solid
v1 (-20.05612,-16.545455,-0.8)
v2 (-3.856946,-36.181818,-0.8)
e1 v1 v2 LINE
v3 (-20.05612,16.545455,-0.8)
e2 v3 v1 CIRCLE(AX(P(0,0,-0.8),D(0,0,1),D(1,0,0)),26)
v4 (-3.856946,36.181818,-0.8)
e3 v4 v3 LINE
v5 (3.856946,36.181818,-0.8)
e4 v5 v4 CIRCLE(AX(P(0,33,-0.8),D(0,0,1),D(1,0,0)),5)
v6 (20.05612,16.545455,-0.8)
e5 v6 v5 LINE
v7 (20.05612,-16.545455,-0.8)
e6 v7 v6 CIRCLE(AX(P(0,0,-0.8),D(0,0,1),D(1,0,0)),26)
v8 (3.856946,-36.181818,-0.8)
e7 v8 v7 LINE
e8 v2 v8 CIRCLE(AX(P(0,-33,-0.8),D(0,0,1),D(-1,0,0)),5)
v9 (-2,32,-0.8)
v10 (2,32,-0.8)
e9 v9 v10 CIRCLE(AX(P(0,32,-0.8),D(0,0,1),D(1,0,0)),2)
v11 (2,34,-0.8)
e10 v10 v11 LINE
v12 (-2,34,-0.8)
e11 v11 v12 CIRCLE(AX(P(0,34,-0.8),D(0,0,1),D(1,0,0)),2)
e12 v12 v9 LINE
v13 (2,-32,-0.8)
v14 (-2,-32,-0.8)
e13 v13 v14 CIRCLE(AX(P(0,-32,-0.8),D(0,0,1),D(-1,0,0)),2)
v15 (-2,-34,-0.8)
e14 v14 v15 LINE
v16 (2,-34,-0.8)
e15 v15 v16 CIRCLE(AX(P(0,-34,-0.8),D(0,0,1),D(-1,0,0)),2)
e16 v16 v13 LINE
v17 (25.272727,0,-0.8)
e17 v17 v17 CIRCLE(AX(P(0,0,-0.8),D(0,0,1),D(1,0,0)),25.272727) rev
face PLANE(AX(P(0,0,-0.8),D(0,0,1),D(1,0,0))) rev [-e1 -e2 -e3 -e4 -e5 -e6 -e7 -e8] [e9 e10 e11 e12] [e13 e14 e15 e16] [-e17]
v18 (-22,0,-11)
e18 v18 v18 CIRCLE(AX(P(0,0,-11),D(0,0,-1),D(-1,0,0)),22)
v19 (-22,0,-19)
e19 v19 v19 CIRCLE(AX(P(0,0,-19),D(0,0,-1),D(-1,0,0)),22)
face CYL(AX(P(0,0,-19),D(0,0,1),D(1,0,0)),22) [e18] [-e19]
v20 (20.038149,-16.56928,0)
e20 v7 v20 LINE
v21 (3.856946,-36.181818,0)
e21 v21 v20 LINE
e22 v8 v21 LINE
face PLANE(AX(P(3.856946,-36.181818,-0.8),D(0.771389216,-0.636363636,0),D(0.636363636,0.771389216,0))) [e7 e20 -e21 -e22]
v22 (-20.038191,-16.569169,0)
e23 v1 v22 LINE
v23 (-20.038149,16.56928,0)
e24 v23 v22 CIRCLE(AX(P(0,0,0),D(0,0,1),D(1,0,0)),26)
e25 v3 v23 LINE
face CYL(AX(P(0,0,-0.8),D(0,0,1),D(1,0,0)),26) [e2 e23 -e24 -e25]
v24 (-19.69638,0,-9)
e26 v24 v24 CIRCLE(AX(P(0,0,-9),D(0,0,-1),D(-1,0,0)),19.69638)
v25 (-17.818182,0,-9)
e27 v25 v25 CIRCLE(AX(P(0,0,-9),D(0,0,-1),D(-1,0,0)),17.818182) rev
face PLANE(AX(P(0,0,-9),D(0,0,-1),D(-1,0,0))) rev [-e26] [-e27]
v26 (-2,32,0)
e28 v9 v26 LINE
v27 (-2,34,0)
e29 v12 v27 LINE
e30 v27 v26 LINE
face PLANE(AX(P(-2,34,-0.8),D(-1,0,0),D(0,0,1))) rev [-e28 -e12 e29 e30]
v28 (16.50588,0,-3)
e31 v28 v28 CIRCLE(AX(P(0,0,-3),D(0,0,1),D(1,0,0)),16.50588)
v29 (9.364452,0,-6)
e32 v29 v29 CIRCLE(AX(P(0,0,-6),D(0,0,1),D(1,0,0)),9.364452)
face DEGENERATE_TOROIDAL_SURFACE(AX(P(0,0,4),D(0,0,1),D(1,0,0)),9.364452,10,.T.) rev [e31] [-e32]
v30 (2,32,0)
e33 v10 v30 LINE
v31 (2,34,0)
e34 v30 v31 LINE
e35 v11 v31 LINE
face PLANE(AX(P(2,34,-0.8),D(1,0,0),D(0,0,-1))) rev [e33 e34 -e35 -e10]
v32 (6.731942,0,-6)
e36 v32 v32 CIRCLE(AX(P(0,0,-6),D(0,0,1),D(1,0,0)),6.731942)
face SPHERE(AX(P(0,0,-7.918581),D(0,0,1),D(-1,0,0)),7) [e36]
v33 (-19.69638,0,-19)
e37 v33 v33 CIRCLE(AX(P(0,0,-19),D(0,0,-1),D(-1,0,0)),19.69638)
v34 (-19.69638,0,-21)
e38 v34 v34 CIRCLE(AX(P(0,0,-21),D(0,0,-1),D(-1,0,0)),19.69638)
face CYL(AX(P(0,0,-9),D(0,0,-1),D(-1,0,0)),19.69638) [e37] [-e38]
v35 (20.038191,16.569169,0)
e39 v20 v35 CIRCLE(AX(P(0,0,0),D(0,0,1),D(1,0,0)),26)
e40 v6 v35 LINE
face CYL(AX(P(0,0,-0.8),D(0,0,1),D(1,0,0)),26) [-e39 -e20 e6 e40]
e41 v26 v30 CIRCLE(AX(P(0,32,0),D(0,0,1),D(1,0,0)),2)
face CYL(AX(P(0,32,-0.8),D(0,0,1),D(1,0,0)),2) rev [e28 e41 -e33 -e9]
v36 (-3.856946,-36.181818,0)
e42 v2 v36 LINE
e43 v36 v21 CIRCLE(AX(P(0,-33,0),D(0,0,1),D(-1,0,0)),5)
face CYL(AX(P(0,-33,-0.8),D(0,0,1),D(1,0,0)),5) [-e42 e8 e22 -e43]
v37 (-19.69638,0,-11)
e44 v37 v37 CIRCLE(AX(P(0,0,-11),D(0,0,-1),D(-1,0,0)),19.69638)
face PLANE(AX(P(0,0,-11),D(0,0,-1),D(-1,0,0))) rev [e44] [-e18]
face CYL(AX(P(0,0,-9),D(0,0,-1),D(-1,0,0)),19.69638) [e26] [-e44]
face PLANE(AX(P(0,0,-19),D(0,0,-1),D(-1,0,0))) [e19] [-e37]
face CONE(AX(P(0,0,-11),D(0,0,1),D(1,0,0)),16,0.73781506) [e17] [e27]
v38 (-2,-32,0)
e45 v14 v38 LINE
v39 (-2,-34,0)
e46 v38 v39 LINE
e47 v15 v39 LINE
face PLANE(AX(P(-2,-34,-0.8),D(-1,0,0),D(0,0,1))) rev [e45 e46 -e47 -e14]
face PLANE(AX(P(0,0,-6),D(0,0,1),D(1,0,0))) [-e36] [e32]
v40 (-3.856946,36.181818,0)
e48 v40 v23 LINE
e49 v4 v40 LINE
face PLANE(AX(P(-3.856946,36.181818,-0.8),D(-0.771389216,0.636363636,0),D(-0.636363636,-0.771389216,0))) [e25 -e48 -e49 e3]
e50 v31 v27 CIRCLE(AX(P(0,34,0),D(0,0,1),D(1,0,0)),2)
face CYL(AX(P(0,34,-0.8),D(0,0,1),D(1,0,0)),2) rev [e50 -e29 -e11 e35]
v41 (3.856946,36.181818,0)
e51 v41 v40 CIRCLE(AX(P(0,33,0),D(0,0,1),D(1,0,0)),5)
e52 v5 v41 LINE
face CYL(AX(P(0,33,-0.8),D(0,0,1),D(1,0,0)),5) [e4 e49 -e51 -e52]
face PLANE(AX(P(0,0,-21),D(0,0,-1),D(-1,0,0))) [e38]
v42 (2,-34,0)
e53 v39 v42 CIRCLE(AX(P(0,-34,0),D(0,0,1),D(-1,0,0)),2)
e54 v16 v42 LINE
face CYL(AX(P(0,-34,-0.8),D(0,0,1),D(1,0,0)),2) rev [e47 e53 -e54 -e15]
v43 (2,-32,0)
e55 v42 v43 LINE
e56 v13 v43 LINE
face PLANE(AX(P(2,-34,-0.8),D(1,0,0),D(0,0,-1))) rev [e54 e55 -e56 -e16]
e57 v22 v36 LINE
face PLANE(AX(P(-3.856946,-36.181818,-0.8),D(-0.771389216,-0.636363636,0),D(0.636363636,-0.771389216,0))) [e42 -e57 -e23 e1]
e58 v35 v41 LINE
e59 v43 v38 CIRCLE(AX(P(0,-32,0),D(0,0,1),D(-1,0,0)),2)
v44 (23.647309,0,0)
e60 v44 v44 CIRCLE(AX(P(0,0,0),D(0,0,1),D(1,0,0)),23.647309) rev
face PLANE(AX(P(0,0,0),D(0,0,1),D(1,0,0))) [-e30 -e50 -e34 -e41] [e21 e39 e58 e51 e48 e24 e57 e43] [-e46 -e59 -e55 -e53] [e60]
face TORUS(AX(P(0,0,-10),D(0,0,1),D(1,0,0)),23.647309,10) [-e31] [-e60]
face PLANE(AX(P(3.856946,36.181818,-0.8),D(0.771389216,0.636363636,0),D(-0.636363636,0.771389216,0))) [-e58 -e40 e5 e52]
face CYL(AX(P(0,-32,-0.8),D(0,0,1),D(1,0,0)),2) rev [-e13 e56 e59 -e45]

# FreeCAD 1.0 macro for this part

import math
import FreeCAD as App
import Part
import Sketcher
from FreeCAD import Vector
Q = App.Units.Quantity


def edges_at(feature, points):
    """Names of the edges that pass closest to the given points."""
    edges = feature.Shape.Edges
    near = lambda p: min(range(len(edges)), key=lambda i: edges[i].distToShape(Part.Vertex(*p))[0])
    return sorted({f"Edge{near(p) + 1}" for p in points})


def faces_at(feature, points):
    """Names of the faces that lie closest to the given points."""
    faces = feature.Shape.Faces
    near = lambda p: min(range(len(faces)), key=lambda i: faces[i].distToShape(Part.Vertex(*p))[0])
    return sorted({f"Face{near(p) + 1}" for p in points})

doc = App.newDocument("Part")
body = doc.addObject("PartDesign::Body", "Body")

sketch1 = doc.addObject("Sketcher::SketchObject", "Sketch")
body.addObject(sketch1)
sketch1.AttachmentSupport = (doc.XY_Plane, [""])
sketch1.MapMode = "FlatFace"
sketch1.addGeometry(Part.Circle(Vector(0, 0, 0), Vector(0, 0, 1), 26), False)
sketch1.addConstraint(Sketcher.Constraint("Coincident", 0, 3, -1, 1))
sketch1.addConstraint(Sketcher.Constraint("Diameter", 0, Q("52 mm")))

sketch2 = doc.addObject("Sketcher::SketchObject", "Sketch001")
body.addObject(sketch2)
sketch2.AttachmentSupport = (doc.XY_Plane, [""])
sketch2.MapMode = "FlatFace"
sketch2.AttachmentOffset = App.Placement(Vector(0, 0, -11), App.Rotation())
sketch2.addGeometry(Part.Circle(Vector(0, 0, 0), Vector(0, 0, 1), 16), False)
sketch2.addConstraint(Sketcher.Constraint("Coincident", 0, 3, -1, 1))
sketch2.addConstraint(Sketcher.Constraint("Diameter", 0, Q("32 mm")))

additiveloft = doc.addObject("PartDesign::AdditiveLoft", "AdditiveLoft")
body.addObject(additiveloft)
additiveloft.Profile = sketch1
additiveloft.Sections = [sketch2]
doc.recompute()

thickness = doc.addObject("PartDesign::Thickness", "Thickness")
body.addObject(thickness)
thickness.Base = (additiveloft, faces_at(additiveloft, [(0, 0, 0)]))
thickness.Value = 5
thickness.Reversed = True
thickness.Join = "Intersection"
doc.recompute()

fillet = doc.addObject("PartDesign::Fillet", "Fillet")
body.addObject(fillet)
fillet.Base = (thickness, edges_at(thickness, [(-13.788, 0, -6)]))
fillet.Radius = 10

sketch3 = doc.addObject("Sketcher::SketchObject", "Sketch002")
body.addObject(sketch3)
sketch3.AttachmentSupport = (doc.XZ_Plane, [""])
sketch3.MapMode = "FlatFace"
sketch3.addGeometry(Part.LineSegment(Vector(7, -6, 0), Vector(0, -6, 0)), False)
sketch3.addGeometry(Part.LineSegment(Vector(0, -6, 0), Vector(0, -1, 0)), False)
sketch3.addGeometry(Part.ArcOfCircle(Part.Circle(Vector(0, -8, 0), Vector(0, 0, 1), 7), math.radians(16), math.radians(90)), False)
sketch3.addConstraint(Sketcher.Constraint("Coincident", 0, 2, 1, 1))
sketch3.addConstraint(Sketcher.Constraint("Coincident", 1, 2, 2, 2))
sketch3.addConstraint(Sketcher.Constraint("Coincident", 2, 1, 0, 1))
sketch3.addConstraint(Sketcher.Constraint("Horizontal", 0))
sketch3.addConstraint(Sketcher.Constraint("Vertical", 1))
sketch3.addConstraint(Sketcher.Constraint("PointOnObject", 2, 3, -2))
sketch3.addConstraint(Sketcher.Constraint("PointOnObject", 0, 2, -2))
sketch3.addConstraint(Sketcher.Constraint("Radius", 2, Q("7 mm")))
sketch3.addConstraint(Sketcher.Constraint("DistanceY", 0, 2, -1, 1, Q("6 mm")))
sketch3.addConstraint(Sketcher.Constraint("DistanceY", 1, 1, 1, 2, Q("5.081419 mm")))
revolution = doc.addObject("PartDesign::Revolution", "Revolution")
body.addObject(revolution)
revolution.Profile = sketch3
revolution.ReferenceAxis = (sketch3, ["V_Axis"])
revolution.Angle = 360

sketch4 = doc.addObject("Sketcher::SketchObject", "Sketch003")
body.addObject(sketch4)
sketch4.AttachmentSupport = (doc.XY_Plane, [""])
sketch4.MapMode = "FlatFace"
sketch4.AttachmentOffset = App.Placement(Vector(0, 0, -11), App.Rotation())
sketch4.addGeometry(Part.Circle(Vector(0, 0, 0), Vector(0, 0, 1), 22), False)
sketch4.addConstraint(Sketcher.Constraint("Coincident", 0, 3, -1, 1))
sketch4.addConstraint(Sketcher.Constraint("Diameter", 0, Q("44 mm")))
pad1 = doc.addObject("PartDesign::Pad", "Pad")
body.addObject(pad1)
pad1.Profile = sketch4
pad1.Length = 8
pad1.Reversed = True

sketch5 = doc.addObject("Sketcher::SketchObject", "Sketch004")
body.addObject(sketch5)
sketch5.AttachmentSupport = (doc.XY_Plane, [""])
sketch5.MapMode = "FlatFace"
sketch5.AttachmentOffset = App.Placement(Vector(0, 0, -21), App.Rotation())
sketch5.addGeometry(Part.Circle(Vector(0, 0, 0), Vector(0, 0, 1), 20), False)
sketch5.addConstraint(Sketcher.Constraint("Coincident", 0, 3, -1, 1))
sketch5.addConstraint(Sketcher.Constraint("Diameter", 0, Q("39.39276 mm")))
pad2 = doc.addObject("PartDesign::Pad", "Pad001")
body.addObject(pad2)
pad2.Profile = sketch5
pad2.Length = 12
doc.recompute()

fillet2 = doc.addObject("PartDesign::Fillet", "Fillet001")
body.addObject(fillet2)
fillet2.Base = (pad2, edges_at(pad2, [(-19.243, 0, 0)]))
fillet2.Radius = 10

sketch6 = doc.addObject("Sketcher::SketchObject", "Sketch005")
body.addObject(sketch6)
sketch6.AttachmentSupport = (doc.XY_Plane, [""])
sketch6.MapMode = "FlatFace"
sketch6.addGeometry(Part.LineSegment(Vector(-3.9, 36.2, 0), Vector(-20.1, 16.5, 0)), False)
sketch6.addGeometry(Part.ArcOfCircle(Part.Circle(Vector(0, 0, 0), Vector(0, 0, 1), 26), math.radians(140), math.radians(220)), False)
sketch6.addGeometry(Part.LineSegment(Vector(-20.1, -16.5, 0), Vector(-3.9, -36.2, 0)), False)
sketch6.addGeometry(Part.ArcOfCircle(Part.Circle(Vector(0, -33, 0), Vector(0, 0, 1), 5), math.radians(-140), math.radians(-40)), False)
sketch6.addGeometry(Part.LineSegment(Vector(3.9, -36.2, 0), Vector(20.1, -16.5, 0)), False)
sketch6.addGeometry(Part.ArcOfCircle(Part.Circle(Vector(0, 0, 0), Vector(0, 0, 1), 26), math.radians(-40), math.radians(40)), False)
sketch6.addGeometry(Part.LineSegment(Vector(20.1, 16.5, 0), Vector(3.9, 36.2, 0)), False)
sketch6.addGeometry(Part.ArcOfCircle(Part.Circle(Vector(0, 33, 0), Vector(0, 0, 1), 5), math.radians(40), math.radians(140)), False)
sketch6.addGeometry(Part.LineSegment(Vector(2, -32, 0), Vector(2, -34, 0)), False)
sketch6.addGeometry(Part.ArcOfCircle(Part.Circle(Vector(0, -34, 0), Vector(0, 0, 1), 2), math.radians(180), math.radians(360)), False)
sketch6.addGeometry(Part.LineSegment(Vector(-2, -34, 0), Vector(-2, -32, 0)), False)
sketch6.addGeometry(Part.ArcOfCircle(Part.Circle(Vector(0, -32, 0), Vector(0, 0, 1), 2), math.radians(0), math.radians(180)), False)
sketch6.addGeometry(Part.Circle(Vector(0, 0, 0), Vector(0, 0, 1), 23.6), False)
sketch6.addGeometry(Part.LineSegment(Vector(-2, 32, 0), Vector(-2, 34, 0)), False)
sketch6.addGeometry(Part.ArcOfCircle(Part.Circle(Vector(0, 34, 0), Vector(0, 0, 1), 2), math.radians(0), math.radians(180)), False)
sketch6.addGeometry(Part.LineSegment(Vector(2, 34, 0), Vector(2, 32, 0)), False)
sketch6.addGeometry(Part.ArcOfCircle(Part.Circle(Vector(0, 32, 0), Vector(0, 0, 1), 2), math.radians(180), math.radians(360)), False)
sketch6.addConstraint(Sketcher.Constraint("Tangent", 0, 2, 1, 1))
sketch6.addConstraint(Sketcher.Constraint("Tangent", 1, 2, 2, 1))
sketch6.addConstraint(Sketcher.Constraint("Tangent", 2, 2, 3, 1))
sketch6.addConstraint(Sketcher.Constraint("Tangent", 3, 2, 4, 1))
sketch6.addConstraint(Sketcher.Constraint("Tangent", 4, 2, 5, 1))
sketch6.addConstraint(Sketcher.Constraint("Tangent", 5, 2, 6, 1))
sketch6.addConstraint(Sketcher.Constraint("Tangent", 6, 2, 7, 1))
sketch6.addConstraint(Sketcher.Constraint("Tangent", 7, 2, 0, 1))
sketch6.addConstraint(Sketcher.Constraint("Tangent", 8, 2, 9, 2))
sketch6.addConstraint(Sketcher.Constraint("Tangent", 9, 1, 10, 1))
sketch6.addConstraint(Sketcher.Constraint("Tangent", 10, 2, 11, 2))
sketch6.addConstraint(Sketcher.Constraint("Tangent", 11, 1, 8, 1))
sketch6.addConstraint(Sketcher.Constraint("Tangent", 13, 2, 14, 2))
sketch6.addConstraint(Sketcher.Constraint("Tangent", 14, 1, 15, 1))
sketch6.addConstraint(Sketcher.Constraint("Tangent", 15, 2, 16, 2))
sketch6.addConstraint(Sketcher.Constraint("Tangent", 16, 1, 13, 1))
sketch6.addConstraint(Sketcher.Constraint("Vertical", 8))
sketch6.addConstraint(Sketcher.Constraint("Vertical", 10))
sketch6.addConstraint(Sketcher.Constraint("Vertical", 13))
sketch6.addConstraint(Sketcher.Constraint("Vertical", 15))
sketch6.addConstraint(Sketcher.Constraint("Coincident", 1, 3, -1, 1))
sketch6.addConstraint(Sketcher.Constraint("Coincident", 5, 3, -1, 1))
sketch6.addConstraint(Sketcher.Constraint("Coincident", 12, 3, -1, 1))
sketch6.addConstraint(Sketcher.Constraint("Equal", 1, 5))
sketch6.addConstraint(Sketcher.Constraint("Equal", 3, 7))
sketch6.addConstraint(Sketcher.Constraint("Equal", 11, 14))
sketch6.addConstraint(Sketcher.Constraint("Symmetric", 3, 3, 7, 3, -1, 1))
sketch6.addConstraint(Sketcher.Constraint("Symmetric", 9, 3, 14, 3, -1, 1))
sketch6.addConstraint(Sketcher.Constraint("Symmetric", 11, 3, 16, 3, -1))
sketch6.addConstraint(Sketcher.Constraint("PointOnObject", 3, 3, -2))
sketch6.addConstraint(Sketcher.Constraint("Radius", 1, Q("26 mm")))
sketch6.addConstraint(Sketcher.Constraint("Radius", 3, Q("5 mm")))
sketch6.addConstraint(Sketcher.Constraint("Radius", 9, Q("2 mm")))
sketch6.addConstraint(Sketcher.Constraint("DistanceY", 8, 2, 8, 1, Q("2 mm")))
sketch6.addConstraint(Sketcher.Constraint("DistanceY", 3, 3, -1, 1, Q("33 mm")))
sketch6.addConstraint(Sketcher.Constraint("DistanceY", 9, 3, -1, 1, Q("34 mm")))
sketch6.addConstraint(Sketcher.Constraint("Diameter", 12, Q("47.294617 mm")))
pad3 = doc.addObject("PartDesign::Pad", "Pad002")
body.addObject(pad3)
pad3.Profile = sketch6
pad3.Length = 0.8
pad3.Reversed = True

doc.recompute()
